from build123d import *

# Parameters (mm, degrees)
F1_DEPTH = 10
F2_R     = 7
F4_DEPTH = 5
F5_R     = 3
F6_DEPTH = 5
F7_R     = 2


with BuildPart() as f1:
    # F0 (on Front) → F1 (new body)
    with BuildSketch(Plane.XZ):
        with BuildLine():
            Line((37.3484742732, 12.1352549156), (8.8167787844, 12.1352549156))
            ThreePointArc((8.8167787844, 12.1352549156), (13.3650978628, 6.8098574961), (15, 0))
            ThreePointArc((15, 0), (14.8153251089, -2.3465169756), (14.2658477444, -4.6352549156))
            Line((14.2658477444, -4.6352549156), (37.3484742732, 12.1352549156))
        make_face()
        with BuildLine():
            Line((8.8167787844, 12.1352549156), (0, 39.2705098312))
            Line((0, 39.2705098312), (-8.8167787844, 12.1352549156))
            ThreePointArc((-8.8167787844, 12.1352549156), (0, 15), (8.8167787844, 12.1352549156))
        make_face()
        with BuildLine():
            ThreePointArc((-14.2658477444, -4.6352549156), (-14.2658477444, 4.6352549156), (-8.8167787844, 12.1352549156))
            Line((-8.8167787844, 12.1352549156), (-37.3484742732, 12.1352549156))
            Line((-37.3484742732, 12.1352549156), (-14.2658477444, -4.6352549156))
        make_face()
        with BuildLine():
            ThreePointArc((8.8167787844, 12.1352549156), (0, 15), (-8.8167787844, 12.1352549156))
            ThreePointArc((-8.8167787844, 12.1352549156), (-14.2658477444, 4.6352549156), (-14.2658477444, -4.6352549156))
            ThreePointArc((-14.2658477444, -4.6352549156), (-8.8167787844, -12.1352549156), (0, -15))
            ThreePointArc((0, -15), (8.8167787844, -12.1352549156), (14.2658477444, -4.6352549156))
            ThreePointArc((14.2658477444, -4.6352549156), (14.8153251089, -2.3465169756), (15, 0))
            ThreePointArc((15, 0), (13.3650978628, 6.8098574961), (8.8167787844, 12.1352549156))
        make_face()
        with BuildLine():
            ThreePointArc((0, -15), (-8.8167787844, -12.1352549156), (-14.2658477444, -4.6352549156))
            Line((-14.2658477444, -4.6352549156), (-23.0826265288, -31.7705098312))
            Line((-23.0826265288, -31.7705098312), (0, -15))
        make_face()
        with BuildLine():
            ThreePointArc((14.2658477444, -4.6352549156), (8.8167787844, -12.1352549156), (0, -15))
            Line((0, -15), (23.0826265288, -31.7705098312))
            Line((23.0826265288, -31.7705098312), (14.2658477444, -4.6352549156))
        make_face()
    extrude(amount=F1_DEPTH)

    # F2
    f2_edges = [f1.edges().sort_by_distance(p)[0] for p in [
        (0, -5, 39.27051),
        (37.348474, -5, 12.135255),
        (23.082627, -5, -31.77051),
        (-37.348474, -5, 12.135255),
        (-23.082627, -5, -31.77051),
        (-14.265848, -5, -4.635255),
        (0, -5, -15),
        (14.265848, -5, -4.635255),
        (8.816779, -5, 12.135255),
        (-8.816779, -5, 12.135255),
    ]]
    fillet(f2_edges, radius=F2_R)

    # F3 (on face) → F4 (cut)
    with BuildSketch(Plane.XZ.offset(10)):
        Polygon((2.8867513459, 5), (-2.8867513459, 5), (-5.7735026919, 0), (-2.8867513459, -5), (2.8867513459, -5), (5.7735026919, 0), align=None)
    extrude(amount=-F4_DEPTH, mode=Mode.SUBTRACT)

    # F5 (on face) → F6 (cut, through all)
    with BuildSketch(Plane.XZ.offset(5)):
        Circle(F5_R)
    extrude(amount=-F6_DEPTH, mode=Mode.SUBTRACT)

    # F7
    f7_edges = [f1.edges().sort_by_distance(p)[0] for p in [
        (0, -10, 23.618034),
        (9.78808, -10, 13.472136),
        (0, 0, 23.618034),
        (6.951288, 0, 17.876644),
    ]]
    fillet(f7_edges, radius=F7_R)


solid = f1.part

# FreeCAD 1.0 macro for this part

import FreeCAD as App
import Part
import Sketcher

V = App.Vector
Q = App.Units.Quantity


def edges_at(feature, points):
    """Names of the edges that pass closest to the given points."""
    edges = feature.Shape.Edges
    near = lambda p: min(range(len(edges)), key=lambda i: edges[i].distToShape(Part.Vertex(*p))[0])
    return sorted({f"Edge{near(p) + 1}" for p in points})

doc = App.newDocument("Part")
body = doc.addObject("PartDesign::Body", "Body")

# Sketch on XZ plane
sketch1 = body.newObject("Sketcher::SketchObject", "Sketch")
sketch1.AttachmentSupport = (doc.getObject("XZ_Plane"), [""])
sketch1.MapMode = "FlatFace"
sketch1.addGeometry(Part.LineSegment(V(37, 12, 0), V(9, 12, 0)), False)
sketch1.addGeometry(Part.LineSegment(V(9, 12, 0), V(0, 39, 0)), False)
sketch1.addGeometry(Part.LineSegment(V(0, 39, 0), V(-9, 12, 0)), False)
sketch1.addGeometry(Part.LineSegment(V(-9, 12, 0), V(-37, 12, 0)), False)
sketch1.addGeometry(Part.LineSegment(V(-37, 12, 0), V(-14, -5, 0)), False)
sketch1.addGeometry(Part.LineSegment(V(-14, -5, 0), V(-23, -32, 0)), False)
sketch1.addGeometry(Part.LineSegment(V(-23, -32, 0), V(0, -15, 0)), False)
sketch1.addGeometry(Part.LineSegment(V(0, -15, 0), V(23, -32, 0)), False)
sketch1.addGeometry(Part.LineSegment(V(23, -32, 0), V(14, -5, 0)), False)
sketch1.addGeometry(Part.LineSegment(V(14, -5, 0), V(37, 12, 0)), False)
sketch1.addConstraint(Sketcher.Constraint("Coincident", 0, 2, 1, 1))
sketch1.addConstraint(Sketcher.Constraint("Coincident", 1, 2, 2, 1))
sketch1.addConstraint(Sketcher.Constraint("Coincident", 2, 2, 3, 1))
sketch1.addConstraint(Sketcher.Constraint("Coincident", 3, 2, 4, 1))
sketch1.addConstraint(Sketcher.Constraint("Coincident", 4, 2, 5, 1))
sketch1.addConstraint(Sketcher.Constraint("Coincident", 5, 2, 6, 1))
sketch1.addConstraint(Sketcher.Constraint("Coincident", 6, 2, 7, 1))
sketch1.addConstraint(Sketcher.Constraint("Coincident", 7, 2, 8, 1))
sketch1.addConstraint(Sketcher.Constraint("Coincident", 8, 2, 9, 1))
sketch1.addConstraint(Sketcher.Constraint("Coincident", 9, 2, 0, 1))
sketch1.addConstraint(Sketcher.Constraint("Horizontal", 0))
sketch1.addConstraint(Sketcher.Constraint("Horizontal", 3))
sketch1.addConstraint(Sketcher.Constraint("Symmetric", 0, 2, 2, 2, -2))
sketch1.addConstraint(Sketcher.Constraint("Symmetric", 5, 2, 7, 2, -2))
sketch1.addConstraint(Sketcher.Constraint("Symmetric", 4, 2, 8, 2, -2))
sketch1.addConstraint(Sketcher.Constraint("PointOnObject", 1, 2, -2))
sketch1.addConstraint(Sketcher.Constraint("PointOnObject", 6, 2, -2))
sketch1.addConstraint(Sketcher.Constraint("Parallel", 2, 5))
sketch1.addConstraint(Sketcher.Constraint("Parallel", 4, 7))
sketch1.addConstraint(Sketcher.Constraint("Parallel", 6, 9))
sketch1.addConstraint(Sketcher.Constraint("Equal", 2, 4))
sketch1.addConstraint(Sketcher.Constraint("Equal", 4, 5))
sketch1.addConstraint(Sketcher.Constraint("Equal", 5, 6))
sketch1.addConstraint(Sketcher.Constraint("Angle", 1, Q("108 deg")))
sketch1.addConstraint(Sketcher.Constraint("Angle", 4, Q("-36 deg")))
sketch1.addConstraint(Sketcher.Constraint("DistanceY", 6, 2, -1, 1, 15.0))
sketch1.addConstraint(Sketcher.Constraint("DistanceX", 0, 2, 0, 1, 28.531695))
pad1 = body.newObject("PartDesign::Pad", "Pad")
pad1.Profile = sketch1
pad1.Length = 10
doc.recompute()

fillet = body.newObject("PartDesign::Fillet", "Fillet")
fillet.Base = (pad1, edges_at(pad1, [
    (0, -5, 39.271),
    (37.348, -5, 12.135),
    (23.083, -5, -31.771),
    (-37.348, -5, 12.135),
    (-23.083, -5, -31.771),
    (-14.266, -5, -4.635),
    (0, -5, -15),
    (14.266, -5, -4.635),
    (8.817, -5, 12.135),
    (-8.817, -5, 12.135),
]))
fillet.Radius = 7

# Sketch on XZ plane
sketch2 = body.newObject("Sketcher::SketchObject", "Sketch001")
sketch2.AttachmentSupport = (doc.getObject("XZ_Plane"), [""])
sketch2.MapMode = "FlatFace"
sketch2.AttachmentOffset = App.Placement(V(0, 0, 10), App.Rotation())
sketch2.addGeometry(Part.LineSegment(V(3, 5, 0), V(-3, 5, 0)), False)
sketch2.addGeometry(Part.LineSegment(V(-3, 5, 0), V(-6, 0, 0)), False)
sketch2.addGeometry(Part.LineSegment(V(-6, 0, 0), V(-3, -5, 0)), False)
sketch2.addGeometry(Part.LineSegment(V(-3, -5, 0), V(3, -5, 0)), False)
sketch2.addGeometry(Part.LineSegment(V(3, -5, 0), V(6, 0, 0)), False)
sketch2.addGeometry(Part.LineSegment(V(6, 0, 0), V(3, 5, 0)), False)
sketch2.addConstraint(Sketcher.Constraint("Coincident", 0, 2, 1, 1))
sketch2.addConstraint(Sketcher.Constraint("Coincident", 1, 2, 2, 1))
sketch2.addConstraint(Sketcher.Constraint("Coincident", 2, 2, 3, 1))
sketch2.addConstraint(Sketcher.Constraint("Coincident", 3, 2, 4, 1))
sketch2.addConstraint(Sketcher.Constraint("Coincident", 4, 2, 5, 1))
sketch2.addConstraint(Sketcher.Constraint("Coincident", 5, 2, 0, 1))
sketch2.addConstraint(Sketcher.Constraint("Horizontal", 0))
sketch2.addConstraint(Sketcher.Constraint("Horizontal", 3))
sketch2.addConstraint(Sketcher.Constraint("Symmetric", 0, 2, 3, 2, -1, 1))
sketch2.addConstraint(Sketcher.Constraint("Symmetric", 1, 2, 4, 2, -1, 1))
sketch2.addConstraint(Sketcher.Constraint("PointOnObject", 1, 2, -1))
sketch2.addConstraint(Sketcher.Constraint("Parallel", 2, 5))
sketch2.addConstraint(Sketcher.Constraint("Vertical", 0, 2, 2, 2))
sketch2.addConstraint(Sketcher.Constraint("Angle", 1, Q("-120 deg")))
sketch2.addConstraint(Sketcher.Constraint("DistanceY", -1, 1, 0, 2, 5.0))
sketch2.addConstraint(Sketcher.Constraint("DistanceX", 0, 2, 0, 1, 5.773503))
pocket1 = body.newObject("PartDesign::Pocket", "Pocket")
pocket1.Profile = sketch2
pocket1.Length = 5

# Sketch on XZ plane
sketch3 = body.newObject("Sketcher::SketchObject", "Sketch002")
sketch3.AttachmentSupport = (doc.getObject("XZ_Plane"), [""])
sketch3.MapMode = "FlatFace"
sketch3.AttachmentOffset = App.Placement(V(0, 0, 5), App.Rotation())
sketch3.addGeometry(Part.Circle(V(0, 0, 0), V(0, 0, 1), 3), False)
sketch3.addConstraint(Sketcher.Constraint("Coincident", 0, 3, -1, 1))
sketch3.addConstraint(Sketcher.Constraint("Diameter", 0, 6.0))
pocket2 = body.newObject("PartDesign::Pocket", "Pocket001")
pocket2.Profile = sketch3
pocket2.Type = "ThroughAll"
doc.recompute()

fillet2 = body.newObject("PartDesign::Fillet", "Fillet001")
fillet2.Base = (pocket2, edges_at(pocket2, [
    (0, -10, 23.618),
    (9.788, -10, 13.472),
    (0, 0, 23.618),
    (6.951, 0, 17.877),
]))
fillet2.Radius = 2

doc.recompute()
